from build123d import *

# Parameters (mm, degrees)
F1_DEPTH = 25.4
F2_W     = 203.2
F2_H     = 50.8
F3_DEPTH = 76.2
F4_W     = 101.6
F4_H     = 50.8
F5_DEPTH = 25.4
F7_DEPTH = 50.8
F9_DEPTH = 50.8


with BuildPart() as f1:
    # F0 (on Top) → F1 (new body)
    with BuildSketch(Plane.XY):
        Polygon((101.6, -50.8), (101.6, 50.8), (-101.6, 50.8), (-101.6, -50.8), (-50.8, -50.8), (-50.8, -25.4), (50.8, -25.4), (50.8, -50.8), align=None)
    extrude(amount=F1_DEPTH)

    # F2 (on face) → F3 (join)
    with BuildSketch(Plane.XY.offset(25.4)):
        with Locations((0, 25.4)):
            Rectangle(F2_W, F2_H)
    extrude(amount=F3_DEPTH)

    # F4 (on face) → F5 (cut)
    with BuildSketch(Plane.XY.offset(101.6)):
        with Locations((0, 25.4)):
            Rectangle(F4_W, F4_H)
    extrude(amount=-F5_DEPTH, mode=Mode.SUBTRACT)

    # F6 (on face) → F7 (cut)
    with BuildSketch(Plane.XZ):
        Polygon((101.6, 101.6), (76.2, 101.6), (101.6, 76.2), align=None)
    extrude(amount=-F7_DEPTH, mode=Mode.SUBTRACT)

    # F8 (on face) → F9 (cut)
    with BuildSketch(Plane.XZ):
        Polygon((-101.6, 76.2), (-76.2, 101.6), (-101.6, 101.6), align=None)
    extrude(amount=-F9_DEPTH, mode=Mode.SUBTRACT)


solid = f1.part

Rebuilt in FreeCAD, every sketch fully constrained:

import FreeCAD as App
import Part
import Sketcher
Q = App.Units.Quantity

doc = App.newDocument("Part")
body = doc.addObject("PartDesign::Body", "Body")

sketch1 = body.newObject("Sketcher::SketchObject", "Sketch")
sketch1.AttachmentSupport = (doc.getObject("XY_Plane"), [""])
sketch1.MapMode = "FlatFace"
sketch1.addGeometry([
    Part.LineSegment(App.Vector(102, -51, 0), App.Vector(102, 51, 0)),
    Part.LineSegment(App.Vector(102, 51, 0), App.Vector(-102, 51, 0)),
    Part.LineSegment(App.Vector(-102, 51, 0), App.Vector(-102, -51, 0)),
    Part.LineSegment(App.Vector(-102, -51, 0), App.Vector(-51, -51, 0)),
    Part.LineSegment(App.Vector(-51, -51, 0), App.Vector(-51, -25, 0)),
    Part.LineSegment(App.Vector(-51, -25, 0), App.Vector(51, -25, 0)),
    Part.LineSegment(App.Vector(51, -25, 0), App.Vector(51, -51, 0)),
    Part.LineSegment(App.Vector(51, -51, 0), App.Vector(102, -51, 0)),
], False)
sketch1.addConstraint([
    Sketcher.Constraint("Coincident", 0, 2, 1, 1),
    Sketcher.Constraint("Coincident", 1, 2, 2, 1),
    Sketcher.Constraint("Coincident", 2, 2, 3, 1),
    Sketcher.Constraint("Coincident", 3, 2, 4, 1),
    Sketcher.Constraint("Coincident", 4, 2, 5, 1),
    Sketcher.Constraint("Coincident", 5, 2, 6, 1),
    Sketcher.Constraint("Coincident", 6, 2, 7, 1),
    Sketcher.Constraint("Coincident", 7, 2, 0, 1),
    Sketcher.Constraint("Vertical", 0),
    Sketcher.Constraint("Horizontal", 1),
    Sketcher.Constraint("Vertical", 2),
    Sketcher.Constraint("Horizontal", 3),
    Sketcher.Constraint("Vertical", 4),
    Sketcher.Constraint("Horizontal", 5),
    Sketcher.Constraint("Vertical", 6),
    Sketcher.Constraint("Horizontal", 7),
    Sketcher.Constraint("Symmetric", 0, 2, 2, 2, -1, 1),
    Sketcher.Constraint("Symmetric", 3, 2, 6, 2, -2),
    Sketcher.Constraint("Equal", 5, 0),
    Sketcher.Constraint("DistanceX", 1, 2, 1, 1, Q("8 in")),
    Sketcher.Constraint("DistanceX", 3, 1, 3, 2, Q("2 in")),
    Sketcher.Constraint("DistanceY", 4, 1, 4, 2, Q("1 in")),
])
pad1 = body.newObject("PartDesign::Pad", "Pad")
pad1.Profile = sketch1
pad1.Length = Q("1 in")

sketch2 = body.newObject("Sketcher::SketchObject", "Sketch001")
sketch2.AttachmentSupport = (doc.getObject("XY_Plane"), [""])
sketch2.MapMode = "FlatFace"
sketch2.AttachmentOffset = App.Placement(App.Vector(0, 0, 1 * 25.4), App.Rotation())
sketch2.addGeometry([
    Part.LineSegment(App.Vector(-102, 51, 0), App.Vector(-102, 0, 0)),
    Part.LineSegment(App.Vector(-102, 0, 0), App.Vector(102, 0, 0)),
    Part.LineSegment(App.Vector(102, 0, 0), App.Vector(102, 51, 0)),
    Part.LineSegment(App.Vector(102, 51, 0), App.Vector(-102, 51, 0)),
], False)
sketch2.addConstraint([
    Sketcher.Constraint("Coincident", 0, 2, 1, 1),
    Sketcher.Constraint("Coincident", 1, 2, 2, 1),
    Sketcher.Constraint("Coincident", 2, 2, 3, 1),
    Sketcher.Constraint("Coincident", 3, 2, 0, 1),
    Sketcher.Constraint("Vertical", 0),
    Sketcher.Constraint("Horizontal", 1),
    Sketcher.Constraint("Vertical", 2),
    Sketcher.Constraint("Horizontal", 3),
    Sketcher.Constraint("Symmetric", 0, 2, 1, 2, -1, 1),
    Sketcher.Constraint("DistanceX", 1, 1, 1, 2, Q("8 in")),
    Sketcher.Constraint("DistanceY", 0, 2, 0, 1, Q("2 in")),
])
pad2 = body.newObject("PartDesign::Pad", "Pad001")
pad2.Profile = sketch2
pad2.Length = Q("3 in")

sketch3 = body.newObject("Sketcher::SketchObject", "Sketch002")
sketch3.AttachmentSupport = (doc.getObject("XY_Plane"), [""])
sketch3.MapMode = "FlatFace"
sketch3.AttachmentOffset = App.Placement(App.Vector(0, 0, 4 * 25.4), App.Rotation())
sketch3.addGeometry([
    Part.LineSegment(App.Vector(-51, 51, 0), App.Vector(-51, 0, 0)),
    Part.LineSegment(App.Vector(-51, 0, 0), App.Vector(51, 0, 0)),
    Part.LineSegment(App.Vector(51, 0, 0), App.Vector(51, 51, 0)),
    Part.LineSegment(App.Vector(51, 51, 0), App.Vector(-51, 51, 0)),
], False)
sketch3.addConstraint([
    Sketcher.Constraint("Coincident", 0, 2, 1, 1),
    Sketcher.Constraint("Coincident", 1, 2, 2, 1),
    Sketcher.Constraint("Coincident", 2, 2, 3, 1),
    Sketcher.Constraint("Coincident", 3, 2, 0, 1),
    Sketcher.Constraint("Vertical", 0),
    Sketcher.Constraint("Horizontal", 1),
    Sketcher.Constraint("Vertical", 2),
    Sketcher.Constraint("Horizontal", 3),
    Sketcher.Constraint("Symmetric", 0, 2, 1, 2, -1, 1),
    Sketcher.Constraint("DistanceX", 1, 1, 1, 2, Q("4 in")),
    Sketcher.Constraint("DistanceY", 0, 2, 0, 1, Q("2 in")),
])
pocket1 = body.newObject("PartDesign::Pocket", "Pocket")
pocket1.Profile = sketch3
pocket1.Length = Q("1 in")

sketch4 = body.newObject("Sketcher::SketchObject", "Sketch003")
sketch4.AttachmentSupport = (doc.getObject("XZ_Plane"), [""])
sketch4.MapMode = "FlatFace"
sketch4.addGeometry([
    Part.LineSegment(App.Vector(102, 102, 0), App.Vector(76, 102, 0)),
    Part.LineSegment(App.Vector(76, 102, 0), App.Vector(102, 76, 0)),
    Part.LineSegment(App.Vector(102, 76, 0), App.Vector(102, 102, 0)),
], False)
sketch4.addConstraint([
    Sketcher.Constraint("Coincident", 0, 2, 1, 1),
    Sketcher.Constraint("Coincident", 1, 2, 2, 1),
    Sketcher.Constraint("Coincident", 2, 2, 0, 1),
    Sketcher.Constraint("Horizontal", 0),
    Sketcher.Constraint("Vertical", 2),
    Sketcher.Constraint("Equal", 0, 2),
    Sketcher.Constraint("DistanceX", 0, 2, 0, 1, Q("1 in")),
    Sketcher.Constraint("DistanceX", -1, 1, 0, 2, Q("3 in")),
    Sketcher.Constraint("DistanceY", -1, 1, 0, 2, Q("4 in")),
])
pocket2 = body.newObject("PartDesign::Pocket", "Pocket001")
pocket2.Profile = sketch4
pocket2.Length = Q("2 in")

sketch5 = body.newObject("Sketcher::SketchObject", "Sketch004")
sketch5.AttachmentSupport = (doc.getObject("XZ_Plane"), [""])
sketch5.MapMode = "FlatFace"
sketch5.addGeometry([
    Part.LineSegment(App.Vector(-102, 76, 0), App.Vector(-76, 102, 0)),
    Part.LineSegment(App.Vector(-76, 102, 0), App.Vector(-102, 102, 0)),
    Part.LineSegment(App.Vector(-102, 102, 0), App.Vector(-102, 76, 0)),
], False)
sketch5.addConstraint([
    Sketcher.Constraint("Coincident", 0, 2, 1, 1),
    Sketcher.Constraint("Coincident", 1, 2, 2, 1),
    Sketcher.Constraint("Coincident", 2, 2, 0, 1),
    Sketcher.Constraint("Horizontal", 1),
    Sketcher.Constraint("Vertical", 2),
    Sketcher.Constraint("Equal", 1, 2),
    Sketcher.Constraint("DistanceX", 1, 2, 1, 1, Q("1 in")),
    Sketcher.Constraint("DistanceX", 0, 2, -1, 1, Q("3 in")),
    Sketcher.Constraint("DistanceY", -1, 1, 0, 2, Q("4 in")),
])
pocket3 = body.newObject("PartDesign::Pocket", "Pocket002")
pocket3.Profile = sketch5
pocket3.Length = Q("2 in")

doc.recompute()
